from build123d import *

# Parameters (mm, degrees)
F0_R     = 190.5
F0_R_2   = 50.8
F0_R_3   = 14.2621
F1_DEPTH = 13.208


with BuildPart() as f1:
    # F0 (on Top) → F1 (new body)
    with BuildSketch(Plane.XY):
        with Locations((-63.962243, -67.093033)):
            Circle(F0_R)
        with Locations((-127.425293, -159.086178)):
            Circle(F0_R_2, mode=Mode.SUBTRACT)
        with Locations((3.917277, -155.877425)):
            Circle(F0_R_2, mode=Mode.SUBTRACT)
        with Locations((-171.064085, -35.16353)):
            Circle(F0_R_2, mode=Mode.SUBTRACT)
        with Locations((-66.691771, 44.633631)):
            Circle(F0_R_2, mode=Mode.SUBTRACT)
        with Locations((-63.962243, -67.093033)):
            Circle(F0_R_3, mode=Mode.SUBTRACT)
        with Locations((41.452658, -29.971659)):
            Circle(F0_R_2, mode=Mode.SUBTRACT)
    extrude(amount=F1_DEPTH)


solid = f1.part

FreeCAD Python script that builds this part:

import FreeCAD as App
import Part
import Sketcher
from FreeCAD import Vector
Q = App.Units.Quantity

doc = App.newDocument("Part")
body = doc.addObject("PartDesign::Body", "Body")

sketch1 = body.newObject("Sketcher::SketchObject", "Sketch")
sketch1.AttachmentSupport = (doc.getObject("XY_Plane"), [""])
sketch1.MapMode = "FlatFace"
sketch1.addGeometry(Part.Circle(Vector(-64, -67, 0), Vector(0, 0, 1), 190), False)
sketch1.addGeometry(Part.Circle(Vector(-127, -159, 0), Vector(0, 0, 1), 51), False)
sketch1.addGeometry(Part.Circle(Vector(4, -156, 0), Vector(0, 0, 1), 51), False)
sketch1.addGeometry(Part.Circle(Vector(-64, -67, 0), Vector(0, 0, 1), 14), False)
sketch1.addGeometry(Part.Circle(Vector(-171, -35, 0), Vector(0, 0, 1), 51), False)
sketch1.addGeometry(Part.Circle(Vector(-67, 45, 0), Vector(0, 0, 1), 51), False)
sketch1.addGeometry(Part.Circle(Vector(41, -30, 0), Vector(0, 0, 1), 51), False)
sketch1.addConstraint(Sketcher.Constraint("Coincident", 3, 3, 0, 3))
sketch1.addConstraint(Sketcher.Constraint("Equal", 1, 2))
sketch1.addConstraint(Sketcher.Constraint("Equal", 2, 4))
sketch1.addConstraint(Sketcher.Constraint("Equal", 4, 5))
sketch1.addConstraint(Sketcher.Constraint("Equal", 5, 6))
sketch1.addConstraint(Sketcher.Constraint("Diameter", 0, Q("15 in")))
sketch1.addConstraint(Sketcher.Constraint("Diameter", 1, Q("4 in")))
sketch1.addConstraint(Sketcher.Constraint("Diameter", 3, Q("1.123 in")))
sketch1.addConstraint(Sketcher.Constraint("DistanceX", 0, 3, 6, 3, Q("105.414901 mm")))
sketch1.addConstraint(Sketcher.Constraint("DistanceY", 4, 3, -1, 1, Q("35.16353 mm")))
sketch1.addConstraint(Sketcher.Constraint("DistanceX", 5, 3, -1, 1, Q("66.691771 mm")))
sketch1.addConstraint(Sketcher.Constraint("DistanceY", -1, 1, 5, 3, Q("44.633631 mm")))
sketch1.addConstraint(Sketcher.Constraint("DistanceY", 6, 3, -1, 1, Q("29.971659 mm")))
sketch1.addConstraint(Sketcher.Constraint("DistanceX", 1, 3, 0, 3, Q("63.46305 mm")))
sketch1.addConstraint(Sketcher.Constraint("DistanceX", 0, 3, 2, 3, Q("67.87952 mm")))
sketch1.addConstraint(Sketcher.Constraint("DistanceY", 2, 3, 0, 3, Q("88.784392 mm")))
sketch1.addConstraint(Sketcher.Constraint("DistanceX", 5, 3, 0, 3, Q("2.729528 mm")))
sketch1.addConstraint(Sketcher.Constraint("DistanceY", 1, 3, 5, 3, Q("203.719809 mm")))
sketch1.addConstraint(Sketcher.Constraint("DistanceY", 0, 3, -1, 1, Q("67.093033 mm")))
sketch1.addConstraint(Sketcher.Constraint("DistanceX", 4, 3, -1, 1, Q("171.064085 mm")))
pad1 = body.newObject("PartDesign::Pad", "Pad")
pad1.Profile = sketch1
pad1.Length = Q("0.52 in")

doc.recompute()
